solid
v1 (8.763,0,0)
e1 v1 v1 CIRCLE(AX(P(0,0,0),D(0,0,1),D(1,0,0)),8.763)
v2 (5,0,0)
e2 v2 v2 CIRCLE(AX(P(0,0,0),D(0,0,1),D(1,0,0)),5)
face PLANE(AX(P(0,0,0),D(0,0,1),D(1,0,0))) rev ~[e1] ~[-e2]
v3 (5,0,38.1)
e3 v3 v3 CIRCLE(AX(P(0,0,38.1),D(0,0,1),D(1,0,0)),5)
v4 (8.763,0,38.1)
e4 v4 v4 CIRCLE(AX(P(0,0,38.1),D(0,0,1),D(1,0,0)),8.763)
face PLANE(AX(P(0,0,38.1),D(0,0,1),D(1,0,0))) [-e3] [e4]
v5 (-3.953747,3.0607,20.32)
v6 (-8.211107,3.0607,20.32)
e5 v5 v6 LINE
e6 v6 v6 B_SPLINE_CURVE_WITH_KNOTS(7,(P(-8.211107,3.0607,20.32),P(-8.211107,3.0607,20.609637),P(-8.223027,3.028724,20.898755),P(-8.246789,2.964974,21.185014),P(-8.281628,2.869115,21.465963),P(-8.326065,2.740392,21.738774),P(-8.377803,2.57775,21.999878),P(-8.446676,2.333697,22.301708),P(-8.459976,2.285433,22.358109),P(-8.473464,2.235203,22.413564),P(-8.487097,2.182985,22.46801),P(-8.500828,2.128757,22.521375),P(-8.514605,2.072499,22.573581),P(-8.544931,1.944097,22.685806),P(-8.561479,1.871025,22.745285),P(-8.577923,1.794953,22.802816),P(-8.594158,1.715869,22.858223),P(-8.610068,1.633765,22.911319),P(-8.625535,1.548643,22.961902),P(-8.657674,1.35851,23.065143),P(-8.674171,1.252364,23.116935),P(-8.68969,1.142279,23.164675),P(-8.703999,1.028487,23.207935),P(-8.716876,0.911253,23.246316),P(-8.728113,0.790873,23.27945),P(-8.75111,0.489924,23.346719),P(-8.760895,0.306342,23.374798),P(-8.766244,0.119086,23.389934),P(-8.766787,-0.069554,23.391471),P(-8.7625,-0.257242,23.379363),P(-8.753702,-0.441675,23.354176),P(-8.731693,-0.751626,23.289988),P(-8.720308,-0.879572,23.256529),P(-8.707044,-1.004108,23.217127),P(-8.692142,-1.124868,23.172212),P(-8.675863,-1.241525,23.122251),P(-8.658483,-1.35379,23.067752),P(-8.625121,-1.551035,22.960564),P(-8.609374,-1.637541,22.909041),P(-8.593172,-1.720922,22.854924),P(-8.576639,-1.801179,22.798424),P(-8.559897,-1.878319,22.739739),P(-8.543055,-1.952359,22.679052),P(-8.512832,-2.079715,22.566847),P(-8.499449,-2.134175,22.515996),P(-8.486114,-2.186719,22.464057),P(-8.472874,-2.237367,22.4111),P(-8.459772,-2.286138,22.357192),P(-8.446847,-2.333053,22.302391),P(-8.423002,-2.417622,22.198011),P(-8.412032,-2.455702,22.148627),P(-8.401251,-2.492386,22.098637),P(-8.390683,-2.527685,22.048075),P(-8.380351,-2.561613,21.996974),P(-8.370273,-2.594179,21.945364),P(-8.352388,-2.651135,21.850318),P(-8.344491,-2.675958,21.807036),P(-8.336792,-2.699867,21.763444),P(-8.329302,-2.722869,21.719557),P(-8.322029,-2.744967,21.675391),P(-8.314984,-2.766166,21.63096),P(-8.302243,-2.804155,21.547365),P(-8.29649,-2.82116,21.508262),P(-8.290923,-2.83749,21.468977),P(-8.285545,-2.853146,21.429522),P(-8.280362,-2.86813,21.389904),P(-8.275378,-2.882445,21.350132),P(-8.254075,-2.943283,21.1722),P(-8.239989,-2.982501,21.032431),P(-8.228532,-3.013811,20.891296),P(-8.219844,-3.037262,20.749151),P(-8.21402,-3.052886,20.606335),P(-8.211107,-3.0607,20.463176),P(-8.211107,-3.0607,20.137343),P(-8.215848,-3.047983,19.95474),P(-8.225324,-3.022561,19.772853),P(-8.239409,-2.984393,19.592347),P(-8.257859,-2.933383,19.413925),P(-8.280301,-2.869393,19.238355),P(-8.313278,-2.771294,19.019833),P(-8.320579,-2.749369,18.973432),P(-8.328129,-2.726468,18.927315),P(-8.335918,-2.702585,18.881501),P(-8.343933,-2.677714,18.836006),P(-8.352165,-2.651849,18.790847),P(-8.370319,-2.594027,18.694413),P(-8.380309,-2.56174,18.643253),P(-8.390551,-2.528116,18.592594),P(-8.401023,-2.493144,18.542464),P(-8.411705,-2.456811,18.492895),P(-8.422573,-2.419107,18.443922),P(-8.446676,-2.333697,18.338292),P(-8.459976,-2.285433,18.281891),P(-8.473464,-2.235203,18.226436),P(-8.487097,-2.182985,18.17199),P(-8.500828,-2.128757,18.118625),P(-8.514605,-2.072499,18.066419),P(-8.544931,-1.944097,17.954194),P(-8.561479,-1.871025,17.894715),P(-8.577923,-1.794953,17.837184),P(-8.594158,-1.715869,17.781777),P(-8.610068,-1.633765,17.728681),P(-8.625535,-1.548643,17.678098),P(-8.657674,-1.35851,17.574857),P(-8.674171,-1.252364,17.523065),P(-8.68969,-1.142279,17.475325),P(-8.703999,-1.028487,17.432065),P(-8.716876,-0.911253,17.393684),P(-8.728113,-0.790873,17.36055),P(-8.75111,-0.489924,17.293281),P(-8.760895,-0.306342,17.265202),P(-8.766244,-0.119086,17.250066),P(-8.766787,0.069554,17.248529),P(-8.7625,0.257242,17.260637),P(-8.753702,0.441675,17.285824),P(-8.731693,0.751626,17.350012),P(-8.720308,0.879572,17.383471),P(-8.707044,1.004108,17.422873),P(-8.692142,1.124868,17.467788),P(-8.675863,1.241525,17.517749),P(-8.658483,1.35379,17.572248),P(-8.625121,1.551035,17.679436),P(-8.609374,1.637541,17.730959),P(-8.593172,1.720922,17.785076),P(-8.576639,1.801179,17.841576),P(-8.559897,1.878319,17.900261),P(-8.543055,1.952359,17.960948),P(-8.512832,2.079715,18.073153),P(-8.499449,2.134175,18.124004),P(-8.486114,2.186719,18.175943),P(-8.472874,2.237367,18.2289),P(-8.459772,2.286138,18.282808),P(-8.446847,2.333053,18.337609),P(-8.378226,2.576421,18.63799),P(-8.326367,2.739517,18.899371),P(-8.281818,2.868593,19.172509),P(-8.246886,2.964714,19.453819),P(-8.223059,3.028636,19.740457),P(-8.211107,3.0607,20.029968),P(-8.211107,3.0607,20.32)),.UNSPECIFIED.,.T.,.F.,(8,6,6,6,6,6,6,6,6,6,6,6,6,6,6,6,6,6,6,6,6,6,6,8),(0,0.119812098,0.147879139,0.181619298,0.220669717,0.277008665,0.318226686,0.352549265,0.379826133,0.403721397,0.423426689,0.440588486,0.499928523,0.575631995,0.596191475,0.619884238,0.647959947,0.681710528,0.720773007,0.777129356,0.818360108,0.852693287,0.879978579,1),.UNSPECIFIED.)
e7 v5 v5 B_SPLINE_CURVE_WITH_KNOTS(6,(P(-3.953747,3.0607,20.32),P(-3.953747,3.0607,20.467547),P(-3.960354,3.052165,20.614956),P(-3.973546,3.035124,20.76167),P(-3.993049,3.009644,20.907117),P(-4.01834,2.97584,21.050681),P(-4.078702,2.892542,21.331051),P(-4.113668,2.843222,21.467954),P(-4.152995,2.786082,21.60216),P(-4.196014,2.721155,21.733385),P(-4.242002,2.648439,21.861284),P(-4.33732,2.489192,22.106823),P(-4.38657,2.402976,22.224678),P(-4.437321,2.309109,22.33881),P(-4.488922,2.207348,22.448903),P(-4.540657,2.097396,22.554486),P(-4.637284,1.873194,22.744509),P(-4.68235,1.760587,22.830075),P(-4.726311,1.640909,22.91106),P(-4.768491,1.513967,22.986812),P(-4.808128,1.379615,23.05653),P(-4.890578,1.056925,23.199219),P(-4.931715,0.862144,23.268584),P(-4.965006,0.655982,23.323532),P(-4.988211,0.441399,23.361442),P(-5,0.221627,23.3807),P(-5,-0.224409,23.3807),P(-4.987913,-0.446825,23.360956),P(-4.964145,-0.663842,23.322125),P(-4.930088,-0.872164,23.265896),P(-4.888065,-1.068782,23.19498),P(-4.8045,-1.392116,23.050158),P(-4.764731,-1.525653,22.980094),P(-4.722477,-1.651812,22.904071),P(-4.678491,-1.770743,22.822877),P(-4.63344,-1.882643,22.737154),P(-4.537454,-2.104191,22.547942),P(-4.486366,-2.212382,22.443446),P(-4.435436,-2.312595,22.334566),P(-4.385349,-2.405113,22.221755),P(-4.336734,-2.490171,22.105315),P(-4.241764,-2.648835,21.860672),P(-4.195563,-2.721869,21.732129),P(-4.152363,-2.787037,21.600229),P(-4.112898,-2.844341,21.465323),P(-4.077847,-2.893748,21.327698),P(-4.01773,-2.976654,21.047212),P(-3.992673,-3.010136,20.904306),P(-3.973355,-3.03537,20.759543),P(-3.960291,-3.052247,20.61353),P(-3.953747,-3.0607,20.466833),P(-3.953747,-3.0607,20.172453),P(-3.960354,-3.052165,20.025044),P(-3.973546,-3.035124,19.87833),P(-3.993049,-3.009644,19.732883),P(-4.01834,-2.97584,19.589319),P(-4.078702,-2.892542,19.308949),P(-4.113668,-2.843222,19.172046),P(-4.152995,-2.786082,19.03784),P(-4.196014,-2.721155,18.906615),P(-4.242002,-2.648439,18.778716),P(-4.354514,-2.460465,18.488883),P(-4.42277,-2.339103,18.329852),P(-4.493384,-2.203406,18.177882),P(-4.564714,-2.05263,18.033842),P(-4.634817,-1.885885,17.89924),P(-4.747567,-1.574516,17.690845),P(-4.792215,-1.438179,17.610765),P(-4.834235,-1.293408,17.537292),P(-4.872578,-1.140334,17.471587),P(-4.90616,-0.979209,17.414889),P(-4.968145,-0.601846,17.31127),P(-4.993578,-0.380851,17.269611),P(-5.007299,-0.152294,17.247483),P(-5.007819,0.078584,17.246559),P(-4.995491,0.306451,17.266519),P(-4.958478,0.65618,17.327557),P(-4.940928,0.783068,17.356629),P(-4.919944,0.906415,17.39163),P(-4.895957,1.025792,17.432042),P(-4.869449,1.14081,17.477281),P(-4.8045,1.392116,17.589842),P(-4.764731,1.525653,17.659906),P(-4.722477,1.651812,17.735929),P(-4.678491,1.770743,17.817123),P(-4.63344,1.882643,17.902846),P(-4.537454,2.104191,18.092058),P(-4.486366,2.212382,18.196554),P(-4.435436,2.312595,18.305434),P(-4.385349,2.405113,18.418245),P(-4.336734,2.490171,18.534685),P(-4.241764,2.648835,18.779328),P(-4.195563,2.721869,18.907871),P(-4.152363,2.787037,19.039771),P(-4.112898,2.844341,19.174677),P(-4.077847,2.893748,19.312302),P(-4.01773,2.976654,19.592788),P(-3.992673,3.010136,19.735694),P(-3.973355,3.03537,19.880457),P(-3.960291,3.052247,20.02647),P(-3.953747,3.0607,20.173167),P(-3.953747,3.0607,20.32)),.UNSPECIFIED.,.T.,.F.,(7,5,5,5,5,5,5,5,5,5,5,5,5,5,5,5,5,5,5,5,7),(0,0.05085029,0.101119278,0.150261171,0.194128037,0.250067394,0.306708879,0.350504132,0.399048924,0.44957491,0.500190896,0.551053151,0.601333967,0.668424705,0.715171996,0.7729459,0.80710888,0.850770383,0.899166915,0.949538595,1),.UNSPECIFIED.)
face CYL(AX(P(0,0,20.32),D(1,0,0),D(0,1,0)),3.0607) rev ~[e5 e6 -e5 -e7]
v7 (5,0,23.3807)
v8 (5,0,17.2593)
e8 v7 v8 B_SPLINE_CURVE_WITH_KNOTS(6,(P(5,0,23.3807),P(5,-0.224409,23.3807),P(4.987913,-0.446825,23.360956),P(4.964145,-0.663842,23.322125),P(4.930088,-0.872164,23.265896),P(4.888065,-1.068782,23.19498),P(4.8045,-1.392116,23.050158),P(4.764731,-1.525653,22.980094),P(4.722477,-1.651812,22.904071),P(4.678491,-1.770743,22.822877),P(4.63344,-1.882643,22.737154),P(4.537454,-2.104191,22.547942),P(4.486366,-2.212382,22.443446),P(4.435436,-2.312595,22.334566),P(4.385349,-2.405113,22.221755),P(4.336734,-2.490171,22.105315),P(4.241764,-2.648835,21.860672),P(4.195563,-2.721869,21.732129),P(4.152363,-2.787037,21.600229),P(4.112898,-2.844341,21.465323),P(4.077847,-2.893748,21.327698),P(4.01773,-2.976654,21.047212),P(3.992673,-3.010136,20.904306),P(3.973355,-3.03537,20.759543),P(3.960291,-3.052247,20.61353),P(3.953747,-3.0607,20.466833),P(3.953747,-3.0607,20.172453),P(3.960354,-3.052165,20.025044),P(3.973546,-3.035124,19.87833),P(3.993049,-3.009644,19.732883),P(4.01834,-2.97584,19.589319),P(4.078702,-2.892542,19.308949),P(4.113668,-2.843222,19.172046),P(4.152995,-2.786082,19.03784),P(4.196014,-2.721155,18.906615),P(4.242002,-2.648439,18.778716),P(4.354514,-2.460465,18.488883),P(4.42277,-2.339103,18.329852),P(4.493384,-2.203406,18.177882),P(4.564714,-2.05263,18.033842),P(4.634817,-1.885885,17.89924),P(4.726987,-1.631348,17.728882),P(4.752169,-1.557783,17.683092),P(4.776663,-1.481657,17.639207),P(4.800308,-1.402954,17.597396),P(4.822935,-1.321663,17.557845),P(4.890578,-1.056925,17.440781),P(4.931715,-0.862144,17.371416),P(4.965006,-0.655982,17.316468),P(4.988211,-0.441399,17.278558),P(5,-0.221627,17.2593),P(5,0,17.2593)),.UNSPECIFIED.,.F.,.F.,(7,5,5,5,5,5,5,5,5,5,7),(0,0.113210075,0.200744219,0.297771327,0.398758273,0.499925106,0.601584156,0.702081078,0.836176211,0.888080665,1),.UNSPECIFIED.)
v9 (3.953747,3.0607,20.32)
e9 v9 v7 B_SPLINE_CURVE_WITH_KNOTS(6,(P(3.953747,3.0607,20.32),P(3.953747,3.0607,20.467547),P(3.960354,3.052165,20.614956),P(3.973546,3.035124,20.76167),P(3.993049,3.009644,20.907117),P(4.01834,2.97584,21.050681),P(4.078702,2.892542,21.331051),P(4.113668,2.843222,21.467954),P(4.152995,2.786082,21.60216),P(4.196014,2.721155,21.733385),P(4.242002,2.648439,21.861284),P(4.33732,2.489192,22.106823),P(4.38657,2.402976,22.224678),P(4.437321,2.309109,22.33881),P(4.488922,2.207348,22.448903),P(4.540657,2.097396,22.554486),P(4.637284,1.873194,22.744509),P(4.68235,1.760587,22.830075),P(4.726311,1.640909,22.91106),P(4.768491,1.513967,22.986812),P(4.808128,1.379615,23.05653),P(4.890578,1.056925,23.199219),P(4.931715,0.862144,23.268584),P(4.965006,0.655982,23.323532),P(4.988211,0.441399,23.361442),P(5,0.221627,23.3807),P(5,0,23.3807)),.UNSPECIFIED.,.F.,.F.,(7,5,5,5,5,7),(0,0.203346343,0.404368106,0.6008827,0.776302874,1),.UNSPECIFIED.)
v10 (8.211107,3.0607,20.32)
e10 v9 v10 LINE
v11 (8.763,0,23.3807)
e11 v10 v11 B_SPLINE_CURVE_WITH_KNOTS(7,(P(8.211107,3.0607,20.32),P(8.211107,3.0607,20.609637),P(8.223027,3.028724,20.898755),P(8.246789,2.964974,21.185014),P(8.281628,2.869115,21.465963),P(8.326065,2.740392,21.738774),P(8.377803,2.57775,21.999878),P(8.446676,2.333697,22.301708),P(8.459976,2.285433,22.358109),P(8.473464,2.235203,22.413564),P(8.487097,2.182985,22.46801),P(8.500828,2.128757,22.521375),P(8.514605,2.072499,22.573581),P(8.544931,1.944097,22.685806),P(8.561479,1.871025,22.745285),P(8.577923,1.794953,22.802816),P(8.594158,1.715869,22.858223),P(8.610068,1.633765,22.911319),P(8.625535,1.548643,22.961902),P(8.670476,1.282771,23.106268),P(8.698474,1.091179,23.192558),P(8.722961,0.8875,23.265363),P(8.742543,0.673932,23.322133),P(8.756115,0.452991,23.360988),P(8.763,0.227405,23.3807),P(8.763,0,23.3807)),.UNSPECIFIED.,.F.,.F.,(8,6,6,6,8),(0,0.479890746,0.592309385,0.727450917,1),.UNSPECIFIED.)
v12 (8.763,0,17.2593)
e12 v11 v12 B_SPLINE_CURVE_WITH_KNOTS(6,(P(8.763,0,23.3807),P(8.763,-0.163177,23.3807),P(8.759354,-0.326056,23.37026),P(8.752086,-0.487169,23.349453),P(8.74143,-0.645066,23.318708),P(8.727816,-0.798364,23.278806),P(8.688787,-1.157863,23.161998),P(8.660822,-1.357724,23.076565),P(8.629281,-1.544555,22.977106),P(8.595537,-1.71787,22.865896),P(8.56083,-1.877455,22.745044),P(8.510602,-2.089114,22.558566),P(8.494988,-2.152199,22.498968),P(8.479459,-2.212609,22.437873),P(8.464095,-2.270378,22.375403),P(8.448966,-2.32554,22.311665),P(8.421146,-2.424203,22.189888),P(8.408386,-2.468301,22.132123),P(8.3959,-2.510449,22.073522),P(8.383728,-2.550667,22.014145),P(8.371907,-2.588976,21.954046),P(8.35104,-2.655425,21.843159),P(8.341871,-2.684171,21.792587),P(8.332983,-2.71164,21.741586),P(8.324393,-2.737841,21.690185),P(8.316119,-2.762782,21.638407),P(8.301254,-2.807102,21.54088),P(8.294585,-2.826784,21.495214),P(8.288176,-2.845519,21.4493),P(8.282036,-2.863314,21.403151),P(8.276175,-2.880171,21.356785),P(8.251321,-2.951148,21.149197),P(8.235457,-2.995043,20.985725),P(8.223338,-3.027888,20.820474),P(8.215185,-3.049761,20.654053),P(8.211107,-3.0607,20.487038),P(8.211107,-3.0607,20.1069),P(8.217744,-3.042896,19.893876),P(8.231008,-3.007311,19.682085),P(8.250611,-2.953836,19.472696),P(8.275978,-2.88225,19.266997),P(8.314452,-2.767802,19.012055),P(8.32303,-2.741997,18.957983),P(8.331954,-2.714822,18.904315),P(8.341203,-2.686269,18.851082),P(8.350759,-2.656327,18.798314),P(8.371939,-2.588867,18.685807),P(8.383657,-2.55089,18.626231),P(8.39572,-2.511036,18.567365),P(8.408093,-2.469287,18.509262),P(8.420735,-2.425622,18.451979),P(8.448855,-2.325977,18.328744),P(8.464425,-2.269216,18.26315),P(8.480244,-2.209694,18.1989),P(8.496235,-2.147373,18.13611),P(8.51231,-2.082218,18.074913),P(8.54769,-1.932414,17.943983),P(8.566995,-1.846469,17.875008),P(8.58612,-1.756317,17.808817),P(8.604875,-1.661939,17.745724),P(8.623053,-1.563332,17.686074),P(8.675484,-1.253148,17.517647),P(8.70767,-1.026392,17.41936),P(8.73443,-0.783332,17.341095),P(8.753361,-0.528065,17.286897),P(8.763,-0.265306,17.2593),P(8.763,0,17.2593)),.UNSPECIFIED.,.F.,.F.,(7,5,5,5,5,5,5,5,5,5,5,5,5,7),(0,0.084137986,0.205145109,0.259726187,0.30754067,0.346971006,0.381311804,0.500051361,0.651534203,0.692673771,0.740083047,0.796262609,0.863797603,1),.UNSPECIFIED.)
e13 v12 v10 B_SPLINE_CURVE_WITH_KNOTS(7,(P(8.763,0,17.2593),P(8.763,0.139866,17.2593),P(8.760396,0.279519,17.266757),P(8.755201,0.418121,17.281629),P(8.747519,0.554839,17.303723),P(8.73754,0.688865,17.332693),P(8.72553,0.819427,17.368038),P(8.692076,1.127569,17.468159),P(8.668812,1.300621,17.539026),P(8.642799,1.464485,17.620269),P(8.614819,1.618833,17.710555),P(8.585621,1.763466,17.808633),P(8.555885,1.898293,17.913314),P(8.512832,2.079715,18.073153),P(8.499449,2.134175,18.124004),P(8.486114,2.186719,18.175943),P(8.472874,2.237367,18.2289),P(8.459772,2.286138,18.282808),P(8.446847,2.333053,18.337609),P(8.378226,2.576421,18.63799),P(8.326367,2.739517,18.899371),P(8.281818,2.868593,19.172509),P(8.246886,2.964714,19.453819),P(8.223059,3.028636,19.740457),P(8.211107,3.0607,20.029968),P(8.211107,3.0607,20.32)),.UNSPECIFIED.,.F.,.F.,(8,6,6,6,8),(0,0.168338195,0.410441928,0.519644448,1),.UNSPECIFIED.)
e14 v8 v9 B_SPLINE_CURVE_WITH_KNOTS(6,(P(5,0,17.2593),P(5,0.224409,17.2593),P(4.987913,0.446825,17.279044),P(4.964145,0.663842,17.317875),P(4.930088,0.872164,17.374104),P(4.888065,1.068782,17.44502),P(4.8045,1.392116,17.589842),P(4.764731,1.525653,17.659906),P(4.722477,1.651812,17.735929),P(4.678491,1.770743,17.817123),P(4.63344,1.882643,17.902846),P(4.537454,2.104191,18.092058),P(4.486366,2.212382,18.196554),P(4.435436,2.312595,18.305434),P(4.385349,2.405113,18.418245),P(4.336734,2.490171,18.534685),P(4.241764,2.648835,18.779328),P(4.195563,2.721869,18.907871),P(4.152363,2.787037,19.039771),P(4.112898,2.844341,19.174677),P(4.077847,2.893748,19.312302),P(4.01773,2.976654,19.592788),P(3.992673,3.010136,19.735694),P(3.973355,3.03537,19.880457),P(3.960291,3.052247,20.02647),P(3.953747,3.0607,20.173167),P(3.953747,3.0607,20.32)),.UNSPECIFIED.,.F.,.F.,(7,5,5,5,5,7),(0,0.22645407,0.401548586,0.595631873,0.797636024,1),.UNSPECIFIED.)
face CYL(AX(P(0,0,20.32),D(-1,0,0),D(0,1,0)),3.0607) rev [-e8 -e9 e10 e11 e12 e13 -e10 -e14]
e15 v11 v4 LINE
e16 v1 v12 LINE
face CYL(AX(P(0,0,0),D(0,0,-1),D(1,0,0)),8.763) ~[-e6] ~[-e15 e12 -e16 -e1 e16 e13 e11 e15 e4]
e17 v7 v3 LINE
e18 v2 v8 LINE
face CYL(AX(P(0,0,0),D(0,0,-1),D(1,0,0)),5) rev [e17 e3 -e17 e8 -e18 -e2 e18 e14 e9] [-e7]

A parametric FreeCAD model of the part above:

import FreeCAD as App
import Part
import Sketcher
Q = App.Units.Quantity

doc = App.newDocument("Part")
body = doc.addObject("PartDesign::Body", "Body")

# Sketch on XY plane
sketch1 = body.newObject("Sketcher::SketchObject", "Sketch")
sketch1.AttachmentSupport = (doc.getObject("XY_Plane"), [""])
sketch1.MapMode = "FlatFace"
sketch1.addGeometry(Part.Circle(App.Vector(0, 0, 0), App.Vector(0, 0, 1), 8.763), False)
sketch1.addGeometry(Part.Circle(App.Vector(0, 0, 0), App.Vector(0, 0, 1), 5), False)
sketch1.addConstraint(Sketcher.Constraint("Coincident", 0, 3, -1, 1))
sketch1.addConstraint(Sketcher.Constraint("Coincident", 1, 3, -1, 1))
sketch1.addConstraint(Sketcher.Constraint("Diameter", 0, Q("0.69 in")))
sketch1.addConstraint(Sketcher.Constraint("Diameter", 1, Q("0.3937 in")))
pad1 = body.newObject("PartDesign::Pad", "Pad")
pad1.Profile = sketch1
pad1.Length = Q("1.5 in")

# Sketch on YZ plane
sketch2 = body.newObject("Sketcher::SketchObject", "Sketch001")
sketch2.AttachmentSupport = (doc.getObject("YZ_Plane"), [""])
sketch2.MapMode = "FlatFace"
sketch2.addGeometry(Part.Circle(App.Vector(0, 20.32, 0), App.Vector(0, 0, 1), 3.0607), False)
sketch2.addConstraint(Sketcher.Constraint("PointOnObject", 0, 3, -2))
sketch2.addConstraint(Sketcher.Constraint("Diameter", 0, Q("0.241 in")))
sketch2.addConstraint(Sketcher.Constraint("DistanceY", -1, 1, 0, 3, Q("0.8 in")))
pocket1 = body.newObject("PartDesign::Pocket", "Pocket")
pocket1.Profile = sketch2
pocket1.Length = Q("1 in")
pocket1.Midplane = True

doc.recompute()
